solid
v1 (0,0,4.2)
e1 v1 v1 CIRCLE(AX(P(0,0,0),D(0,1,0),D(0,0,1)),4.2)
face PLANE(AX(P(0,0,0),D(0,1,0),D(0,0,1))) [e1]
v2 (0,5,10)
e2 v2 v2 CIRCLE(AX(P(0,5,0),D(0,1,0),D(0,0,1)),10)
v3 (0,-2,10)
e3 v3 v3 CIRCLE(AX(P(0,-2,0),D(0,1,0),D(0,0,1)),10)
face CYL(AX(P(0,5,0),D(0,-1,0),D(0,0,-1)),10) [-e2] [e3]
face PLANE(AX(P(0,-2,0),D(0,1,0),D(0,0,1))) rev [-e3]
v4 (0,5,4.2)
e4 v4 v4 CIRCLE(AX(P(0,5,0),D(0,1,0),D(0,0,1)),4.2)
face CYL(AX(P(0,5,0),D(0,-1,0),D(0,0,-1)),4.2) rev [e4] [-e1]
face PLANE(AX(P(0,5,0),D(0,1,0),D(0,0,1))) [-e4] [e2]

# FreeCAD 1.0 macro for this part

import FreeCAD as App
import Part
import Sketcher

V = App.Vector
Q = App.Units.Quantity

doc = App.newDocument("Part")
body = doc.addObject("PartDesign::Body", "Body")

sketch1 = body.newObject("Sketcher::SketchObject", "Sketch")
sketch1.AttachmentSupport = (doc.getObject("XZ_Plane"), [""])
sketch1.MapMode = "FlatFace"
sketch1.addGeometry([
    Part.Circle(V(0, 0, 0), V(0, 0, 1), 10),
    Part.Circle(V(0, 0, 0), V(0, 0, 1), 4.2),
], False)
sketch1.addConstraint([
    Sketcher.Constraint("Coincident", 0, 3, -1, 1),
    Sketcher.Constraint("Coincident", 1, 3, -1, 1),
    Sketcher.Constraint("Diameter", 0, Q("20 mm")),
    Sketcher.Constraint("Diameter", 1, Q("8.4 mm")),
])
pad1 = body.newObject("PartDesign::Pad", "Pad")
pad1.Profile = sketch1
pad1.Length = 5
pad1.Reversed = True

sketch2 = body.newObject("Sketcher::SketchObject", "Sketch001")
sketch2.AttachmentSupport = (doc.getObject("XZ_Plane"), [""])
sketch2.MapMode = "FlatFace"
sketch2.AttachmentOffset = App.Placement(V(0, 0, 2), App.Rotation())
sketch2.addGeometry(Part.Circle(V(0, 0, 0), V(0, 0, 1), 10), False)
sketch2.addConstraint([
    Sketcher.Constraint("Coincident", 0, 3, -1, 1),
    Sketcher.Constraint("Diameter", 0, Q("20 mm")),
])
pad2 = body.newObject("PartDesign::Pad", "Pad001")
pad2.Profile = sketch2
pad2.Length = 2
pad2.Reversed = True

doc.recompute()
